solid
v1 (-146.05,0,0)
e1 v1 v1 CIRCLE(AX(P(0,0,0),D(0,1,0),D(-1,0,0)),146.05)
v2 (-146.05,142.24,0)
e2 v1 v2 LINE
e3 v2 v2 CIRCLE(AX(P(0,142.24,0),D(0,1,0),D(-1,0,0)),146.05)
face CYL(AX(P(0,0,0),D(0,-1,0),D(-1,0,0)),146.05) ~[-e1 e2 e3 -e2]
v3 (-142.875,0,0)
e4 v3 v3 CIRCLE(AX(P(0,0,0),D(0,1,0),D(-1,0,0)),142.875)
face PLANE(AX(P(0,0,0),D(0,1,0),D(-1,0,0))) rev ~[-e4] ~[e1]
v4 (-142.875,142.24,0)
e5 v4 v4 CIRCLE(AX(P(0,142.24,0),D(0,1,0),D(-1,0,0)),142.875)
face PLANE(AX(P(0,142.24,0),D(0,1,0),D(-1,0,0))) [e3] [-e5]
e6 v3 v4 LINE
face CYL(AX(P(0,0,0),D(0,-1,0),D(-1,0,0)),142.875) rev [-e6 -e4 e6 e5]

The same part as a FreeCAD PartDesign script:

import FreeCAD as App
import Part
import Sketcher

V = App.Vector
Q = App.Units.Quantity

doc = App.newDocument("Part")
body = doc.addObject("PartDesign::Body", "Body")

sketch1 = doc.addObject("Sketcher::SketchObject", "Sketch")
body.addObject(sketch1)
sketch1.AttachmentSupport = (doc.XZ_Plane, [""])
sketch1.MapMode = "FlatFace"
sketch1.addGeometry([
    Part.Circle(V(0, 0, 0), V(0, 0, 1), 146.05),
    Part.Circle(V(0, 0, 0), V(0, 0, 1), 142.875),
], False)
sketch1.addConstraint([
    Sketcher.Constraint("Coincident", 0, 3, -1, 1),
    Sketcher.Constraint("Coincident", 1, 3, -1, 1),
    Sketcher.Constraint("Diameter", 0, Q("11.5 in")),
    Sketcher.Constraint("Diameter", 1, Q("11.25 in")),
])
pad1 = doc.addObject("PartDesign::Pad", "Pad")
body.addObject(pad1)
pad1.Profile = sketch1
pad1.Length = Q("5.6 in")
pad1.Reversed = True

doc.recompute()
